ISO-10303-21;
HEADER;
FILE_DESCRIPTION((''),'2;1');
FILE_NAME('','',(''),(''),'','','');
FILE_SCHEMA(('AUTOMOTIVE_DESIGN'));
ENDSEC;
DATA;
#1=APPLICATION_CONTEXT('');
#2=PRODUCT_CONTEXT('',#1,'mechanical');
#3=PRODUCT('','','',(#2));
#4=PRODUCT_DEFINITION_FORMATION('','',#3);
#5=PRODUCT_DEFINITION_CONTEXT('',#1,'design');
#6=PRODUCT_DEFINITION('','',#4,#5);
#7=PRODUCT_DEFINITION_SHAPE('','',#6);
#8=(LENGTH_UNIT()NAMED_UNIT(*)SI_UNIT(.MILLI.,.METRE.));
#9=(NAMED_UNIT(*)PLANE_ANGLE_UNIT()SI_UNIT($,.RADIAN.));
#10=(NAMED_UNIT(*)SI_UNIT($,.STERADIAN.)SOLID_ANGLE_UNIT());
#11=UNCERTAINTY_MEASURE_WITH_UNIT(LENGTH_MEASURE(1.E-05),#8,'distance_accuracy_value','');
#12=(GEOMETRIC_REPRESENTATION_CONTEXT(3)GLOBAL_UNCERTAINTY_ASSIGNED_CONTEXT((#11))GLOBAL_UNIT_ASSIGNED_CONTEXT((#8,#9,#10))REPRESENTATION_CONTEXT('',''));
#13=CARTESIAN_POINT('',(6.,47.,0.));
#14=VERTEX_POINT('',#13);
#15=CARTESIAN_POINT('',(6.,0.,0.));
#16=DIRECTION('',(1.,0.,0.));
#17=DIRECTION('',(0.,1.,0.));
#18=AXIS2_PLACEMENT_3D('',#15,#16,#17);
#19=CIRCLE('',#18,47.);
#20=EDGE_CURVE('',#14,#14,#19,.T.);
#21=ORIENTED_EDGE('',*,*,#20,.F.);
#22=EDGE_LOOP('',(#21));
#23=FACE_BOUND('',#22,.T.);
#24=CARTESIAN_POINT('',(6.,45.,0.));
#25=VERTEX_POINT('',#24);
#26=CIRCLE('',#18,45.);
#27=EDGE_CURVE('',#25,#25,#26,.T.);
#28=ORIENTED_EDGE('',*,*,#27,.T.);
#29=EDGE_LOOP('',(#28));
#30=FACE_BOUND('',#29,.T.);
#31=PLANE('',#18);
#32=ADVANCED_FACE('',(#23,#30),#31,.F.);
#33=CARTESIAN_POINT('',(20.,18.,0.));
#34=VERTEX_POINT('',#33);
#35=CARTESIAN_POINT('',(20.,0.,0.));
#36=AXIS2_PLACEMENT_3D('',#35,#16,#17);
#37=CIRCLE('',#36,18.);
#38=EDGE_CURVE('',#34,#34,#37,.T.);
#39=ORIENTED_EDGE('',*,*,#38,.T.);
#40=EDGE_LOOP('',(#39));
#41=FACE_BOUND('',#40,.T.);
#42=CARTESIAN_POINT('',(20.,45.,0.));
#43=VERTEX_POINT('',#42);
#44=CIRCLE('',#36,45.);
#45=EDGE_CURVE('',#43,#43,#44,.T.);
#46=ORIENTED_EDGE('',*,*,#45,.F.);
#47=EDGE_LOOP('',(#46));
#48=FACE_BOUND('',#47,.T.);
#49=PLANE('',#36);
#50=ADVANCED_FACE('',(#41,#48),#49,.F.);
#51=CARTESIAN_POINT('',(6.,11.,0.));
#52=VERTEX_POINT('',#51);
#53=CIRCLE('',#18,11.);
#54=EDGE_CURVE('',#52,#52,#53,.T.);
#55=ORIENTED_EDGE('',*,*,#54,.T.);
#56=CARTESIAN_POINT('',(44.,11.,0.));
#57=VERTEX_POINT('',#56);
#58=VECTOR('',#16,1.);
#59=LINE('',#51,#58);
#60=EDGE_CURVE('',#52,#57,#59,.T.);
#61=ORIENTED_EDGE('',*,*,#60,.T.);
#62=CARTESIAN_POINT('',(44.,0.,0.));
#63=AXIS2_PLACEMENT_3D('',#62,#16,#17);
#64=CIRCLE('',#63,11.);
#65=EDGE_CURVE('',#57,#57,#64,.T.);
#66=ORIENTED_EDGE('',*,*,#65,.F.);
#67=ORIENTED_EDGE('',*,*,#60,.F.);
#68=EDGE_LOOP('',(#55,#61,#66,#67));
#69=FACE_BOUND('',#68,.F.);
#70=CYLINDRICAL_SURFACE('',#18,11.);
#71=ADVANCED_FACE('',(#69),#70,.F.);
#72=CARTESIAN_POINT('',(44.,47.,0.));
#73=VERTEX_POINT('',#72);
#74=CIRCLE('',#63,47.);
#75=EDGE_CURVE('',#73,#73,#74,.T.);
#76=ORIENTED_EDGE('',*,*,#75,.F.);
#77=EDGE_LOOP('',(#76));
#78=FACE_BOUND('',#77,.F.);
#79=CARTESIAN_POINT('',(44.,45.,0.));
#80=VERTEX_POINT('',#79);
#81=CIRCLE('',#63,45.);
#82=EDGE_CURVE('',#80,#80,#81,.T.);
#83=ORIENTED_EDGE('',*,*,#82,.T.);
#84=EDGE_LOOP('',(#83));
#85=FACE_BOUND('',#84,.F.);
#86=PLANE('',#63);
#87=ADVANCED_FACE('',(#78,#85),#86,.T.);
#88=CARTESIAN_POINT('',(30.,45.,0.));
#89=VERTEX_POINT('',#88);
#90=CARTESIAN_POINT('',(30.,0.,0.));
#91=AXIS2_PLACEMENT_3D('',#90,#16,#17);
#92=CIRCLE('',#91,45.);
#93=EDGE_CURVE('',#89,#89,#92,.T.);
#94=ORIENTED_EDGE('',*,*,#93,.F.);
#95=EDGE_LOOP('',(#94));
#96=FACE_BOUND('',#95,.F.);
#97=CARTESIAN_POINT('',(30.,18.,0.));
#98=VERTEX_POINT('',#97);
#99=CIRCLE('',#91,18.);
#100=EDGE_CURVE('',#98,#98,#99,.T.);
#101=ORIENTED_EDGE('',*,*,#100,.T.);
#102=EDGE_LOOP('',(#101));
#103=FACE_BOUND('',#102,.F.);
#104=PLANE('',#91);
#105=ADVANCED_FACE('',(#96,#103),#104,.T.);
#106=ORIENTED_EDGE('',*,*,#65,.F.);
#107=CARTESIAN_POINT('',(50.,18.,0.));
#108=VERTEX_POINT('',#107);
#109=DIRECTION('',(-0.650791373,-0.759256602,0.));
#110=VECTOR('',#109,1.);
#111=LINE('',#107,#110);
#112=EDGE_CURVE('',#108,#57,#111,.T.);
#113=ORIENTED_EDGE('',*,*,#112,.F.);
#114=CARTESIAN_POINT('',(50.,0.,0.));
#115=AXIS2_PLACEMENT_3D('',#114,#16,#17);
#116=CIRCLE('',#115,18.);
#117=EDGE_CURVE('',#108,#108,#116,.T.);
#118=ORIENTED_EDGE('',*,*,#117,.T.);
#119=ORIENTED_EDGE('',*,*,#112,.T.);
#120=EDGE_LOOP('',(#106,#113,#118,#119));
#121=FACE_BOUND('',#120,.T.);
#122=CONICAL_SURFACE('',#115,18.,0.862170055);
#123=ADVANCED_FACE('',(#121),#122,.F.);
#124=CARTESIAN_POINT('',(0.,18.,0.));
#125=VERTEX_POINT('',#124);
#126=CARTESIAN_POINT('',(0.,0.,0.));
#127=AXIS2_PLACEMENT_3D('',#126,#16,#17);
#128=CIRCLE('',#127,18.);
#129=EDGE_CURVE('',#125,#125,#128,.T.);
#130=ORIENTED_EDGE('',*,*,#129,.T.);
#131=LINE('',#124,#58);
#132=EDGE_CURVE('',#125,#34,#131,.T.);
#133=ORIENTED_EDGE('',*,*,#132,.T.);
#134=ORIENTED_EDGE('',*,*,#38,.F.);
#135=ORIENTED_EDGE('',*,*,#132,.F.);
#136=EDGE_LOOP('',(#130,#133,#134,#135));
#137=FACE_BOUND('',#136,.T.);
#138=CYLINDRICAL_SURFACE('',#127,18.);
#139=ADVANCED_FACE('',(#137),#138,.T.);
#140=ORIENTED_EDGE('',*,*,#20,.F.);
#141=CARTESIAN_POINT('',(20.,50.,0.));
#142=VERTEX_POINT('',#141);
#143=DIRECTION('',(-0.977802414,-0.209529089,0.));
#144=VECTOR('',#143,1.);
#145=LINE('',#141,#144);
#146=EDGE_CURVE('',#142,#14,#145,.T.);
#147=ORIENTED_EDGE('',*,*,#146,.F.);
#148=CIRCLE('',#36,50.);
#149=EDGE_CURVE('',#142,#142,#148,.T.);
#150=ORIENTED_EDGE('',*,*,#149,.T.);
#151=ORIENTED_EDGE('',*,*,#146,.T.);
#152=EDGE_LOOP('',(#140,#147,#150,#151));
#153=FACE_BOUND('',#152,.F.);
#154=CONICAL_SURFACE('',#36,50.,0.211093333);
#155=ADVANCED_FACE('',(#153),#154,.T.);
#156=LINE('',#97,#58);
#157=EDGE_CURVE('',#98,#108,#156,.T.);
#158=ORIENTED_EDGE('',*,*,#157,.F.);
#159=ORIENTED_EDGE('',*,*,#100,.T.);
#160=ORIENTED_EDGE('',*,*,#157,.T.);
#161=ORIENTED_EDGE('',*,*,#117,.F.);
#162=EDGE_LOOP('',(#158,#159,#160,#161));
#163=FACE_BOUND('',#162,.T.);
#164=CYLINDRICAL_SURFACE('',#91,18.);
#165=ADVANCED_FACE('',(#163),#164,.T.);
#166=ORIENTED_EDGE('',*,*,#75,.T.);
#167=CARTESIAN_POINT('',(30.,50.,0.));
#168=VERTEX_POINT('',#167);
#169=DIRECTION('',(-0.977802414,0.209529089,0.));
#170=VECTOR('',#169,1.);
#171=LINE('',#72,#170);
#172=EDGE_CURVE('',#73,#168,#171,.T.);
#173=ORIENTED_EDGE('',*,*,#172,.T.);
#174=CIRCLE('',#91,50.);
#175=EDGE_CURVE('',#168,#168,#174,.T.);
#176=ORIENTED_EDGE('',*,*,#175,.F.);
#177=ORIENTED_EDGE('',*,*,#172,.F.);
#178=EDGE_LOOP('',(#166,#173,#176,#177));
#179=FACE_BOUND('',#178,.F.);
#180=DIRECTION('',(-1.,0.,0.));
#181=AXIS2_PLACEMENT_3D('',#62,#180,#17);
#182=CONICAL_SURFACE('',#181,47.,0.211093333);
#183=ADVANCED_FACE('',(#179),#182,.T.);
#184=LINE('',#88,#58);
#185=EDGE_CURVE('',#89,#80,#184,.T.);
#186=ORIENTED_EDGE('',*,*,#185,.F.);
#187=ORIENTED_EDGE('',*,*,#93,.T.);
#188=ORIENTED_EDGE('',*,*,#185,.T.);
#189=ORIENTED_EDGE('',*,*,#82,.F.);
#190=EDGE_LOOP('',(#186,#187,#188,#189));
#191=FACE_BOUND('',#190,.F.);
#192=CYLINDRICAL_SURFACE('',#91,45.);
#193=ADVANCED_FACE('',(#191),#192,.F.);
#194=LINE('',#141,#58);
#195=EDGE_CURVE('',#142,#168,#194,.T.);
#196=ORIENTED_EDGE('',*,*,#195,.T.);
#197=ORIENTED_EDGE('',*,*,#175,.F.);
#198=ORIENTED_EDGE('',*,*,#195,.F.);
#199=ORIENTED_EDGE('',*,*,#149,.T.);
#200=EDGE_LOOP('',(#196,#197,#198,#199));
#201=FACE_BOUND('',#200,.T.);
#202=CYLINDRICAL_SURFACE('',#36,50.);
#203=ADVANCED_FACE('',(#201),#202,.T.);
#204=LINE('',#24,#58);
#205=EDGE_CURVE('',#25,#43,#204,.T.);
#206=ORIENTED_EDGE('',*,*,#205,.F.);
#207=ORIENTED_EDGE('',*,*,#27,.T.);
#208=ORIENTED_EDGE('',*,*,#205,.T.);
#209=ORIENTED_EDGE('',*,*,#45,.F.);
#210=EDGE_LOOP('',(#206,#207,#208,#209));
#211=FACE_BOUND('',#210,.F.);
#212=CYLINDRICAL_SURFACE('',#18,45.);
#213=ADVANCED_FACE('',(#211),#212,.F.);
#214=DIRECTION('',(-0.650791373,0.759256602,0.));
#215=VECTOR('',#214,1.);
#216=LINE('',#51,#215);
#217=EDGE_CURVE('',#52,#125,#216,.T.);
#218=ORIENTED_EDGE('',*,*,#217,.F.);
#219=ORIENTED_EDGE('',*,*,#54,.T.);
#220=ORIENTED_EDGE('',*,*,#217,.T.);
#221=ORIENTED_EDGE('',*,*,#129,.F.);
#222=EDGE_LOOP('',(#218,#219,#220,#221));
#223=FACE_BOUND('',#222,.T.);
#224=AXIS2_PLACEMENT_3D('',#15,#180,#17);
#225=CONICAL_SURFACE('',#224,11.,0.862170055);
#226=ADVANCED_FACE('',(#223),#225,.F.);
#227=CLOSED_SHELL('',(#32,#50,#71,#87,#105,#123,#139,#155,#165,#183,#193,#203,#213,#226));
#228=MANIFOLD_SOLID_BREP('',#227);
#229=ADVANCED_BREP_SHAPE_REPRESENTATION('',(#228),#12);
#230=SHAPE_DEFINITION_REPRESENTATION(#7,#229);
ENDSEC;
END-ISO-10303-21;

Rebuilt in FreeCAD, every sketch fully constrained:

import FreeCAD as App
import Part
import Sketcher

doc = App.newDocument("Part")
body = doc.addObject("PartDesign::Body", "Body")

# Sketch on XY plane
sketch1 = body.newObject("Sketcher::SketchObject", "Sketch")
sketch1.AttachmentSupport = (doc.getObject("XY_Plane"), [""])
sketch1.MapMode = "FlatFace"
sketch1.addGeometry([
    Part.LineSegment(App.Vector(0, 18, 0), App.Vector(6, 11, 0)),  # 0
    Part.LineSegment(App.Vector(6, 11, 0), App.Vector(44, 11, 0)),  # 1
    Part.LineSegment(App.Vector(44, 11, 0), App.Vector(50, 18, 0)),  # 2
    Part.LineSegment(App.Vector(50, 18, 0), App.Vector(30, 18, 0)),  # 3
    Part.LineSegment(App.Vector(30, 18, 0), App.Vector(30, 45, 0)),  # 4
    Part.LineSegment(App.Vector(30, 45, 0), App.Vector(44, 45, 0)),  # 5
    Part.LineSegment(App.Vector(44, 45, 0), App.Vector(44, 47, 0)),  # 6
    Part.LineSegment(App.Vector(44, 47, 0), App.Vector(30, 50, 0)),  # 7
    Part.LineSegment(App.Vector(30, 50, 0), App.Vector(20, 50, 0)),  # 8
    Part.LineSegment(App.Vector(20, 50, 0), App.Vector(6, 47, 0)),  # 9
    Part.LineSegment(App.Vector(6, 47, 0), App.Vector(6, 45, 0)),  # 10
    Part.LineSegment(App.Vector(6, 45, 0), App.Vector(20, 45, 0)),  # 11
    Part.LineSegment(App.Vector(20, 45, 0), App.Vector(20, 18, 0)),  # 12
    Part.LineSegment(App.Vector(20, 18, 0), App.Vector(0, 18, 0)),  # 13
], False)
sketch1.addConstraint([
    Sketcher.Constraint("Coincident", 0, 2, 1, 1),
    Sketcher.Constraint("Coincident", 1, 2, 2, 1),
    Sketcher.Constraint("Coincident", 2, 2, 3, 1),
    Sketcher.Constraint("Coincident", 3, 2, 4, 1),
    Sketcher.Constraint("Coincident", 4, 2, 5, 1),
    Sketcher.Constraint("Coincident", 5, 2, 6, 1),
    Sketcher.Constraint("Coincident", 6, 2, 7, 1),
    Sketcher.Constraint("Coincident", 7, 2, 8, 1),
    Sketcher.Constraint("Coincident", 8, 2, 9, 1),
    Sketcher.Constraint("Coincident", 9, 2, 10, 1),
    Sketcher.Constraint("Coincident", 10, 2, 11, 1),
    Sketcher.Constraint("Coincident", 11, 2, 12, 1),
    Sketcher.Constraint("Coincident", 12, 2, 13, 1),
    Sketcher.Constraint("Coincident", 13, 2, 0, 1),
    Sketcher.Constraint("Horizontal", 1),
    Sketcher.Constraint("Horizontal", 3),
    Sketcher.Constraint("Vertical", 4),
    Sketcher.Constraint("Horizontal", 5),
    Sketcher.Constraint("Vertical", 6),
    Sketcher.Constraint("Horizontal", 8),
    Sketcher.Constraint("Vertical", 10),
    Sketcher.Constraint("Horizontal", 11),
    Sketcher.Constraint("Vertical", 12),
    Sketcher.Constraint("Horizontal", 13),
    Sketcher.Constraint("PointOnObject", 13, 2, -2),
    Sketcher.Constraint("Horizontal", 6, 2, 9, 2),
    Sketcher.Constraint("Horizontal", 5, 2, 10, 2),
    Sketcher.Constraint("Horizontal", 3, 2, 12, 2),
    Sketcher.Constraint("Vertical", 1, 2, 5, 2),
    Sketcher.Constraint("Vertical", 4, 2, 7, 2),
    Sketcher.Constraint("Vertical", 0, 2, 9, 2),
    Sketcher.Constraint("Vertical", 8, 2, 11, 2),
    Sketcher.Constraint("Equal", 5, 11),
    Sketcher.Constraint("Equal", 3, 13),
    Sketcher.Constraint("DistanceX", 1, 1, 1, 2, 38.0),
    Sketcher.Constraint("DistanceX", 3, 2, 3, 1, 20.0),
    Sketcher.Constraint("DistanceX", 8, 2, 8, 1, 10.0),
    Sketcher.Constraint("DistanceY", 6, 1, 6, 2, 2.0),
    Sketcher.Constraint("DistanceY", -1, 1, 0, 2, 11.0),
    Sketcher.Constraint("DistanceY", -1, 1, 2, 2, 18.0),
    Sketcher.Constraint("DistanceY", -1, 1, 4, 2, 45.0),
    Sketcher.Constraint("DistanceY", -1, 1, 7, 2, 50.0),
])
revolution = body.newObject("PartDesign::Revolution", "Revolution")
revolution.Profile = sketch1
revolution.ReferenceAxis = (sketch1, ["H_Axis"])
revolution.Angle = 360

doc.recompute()
